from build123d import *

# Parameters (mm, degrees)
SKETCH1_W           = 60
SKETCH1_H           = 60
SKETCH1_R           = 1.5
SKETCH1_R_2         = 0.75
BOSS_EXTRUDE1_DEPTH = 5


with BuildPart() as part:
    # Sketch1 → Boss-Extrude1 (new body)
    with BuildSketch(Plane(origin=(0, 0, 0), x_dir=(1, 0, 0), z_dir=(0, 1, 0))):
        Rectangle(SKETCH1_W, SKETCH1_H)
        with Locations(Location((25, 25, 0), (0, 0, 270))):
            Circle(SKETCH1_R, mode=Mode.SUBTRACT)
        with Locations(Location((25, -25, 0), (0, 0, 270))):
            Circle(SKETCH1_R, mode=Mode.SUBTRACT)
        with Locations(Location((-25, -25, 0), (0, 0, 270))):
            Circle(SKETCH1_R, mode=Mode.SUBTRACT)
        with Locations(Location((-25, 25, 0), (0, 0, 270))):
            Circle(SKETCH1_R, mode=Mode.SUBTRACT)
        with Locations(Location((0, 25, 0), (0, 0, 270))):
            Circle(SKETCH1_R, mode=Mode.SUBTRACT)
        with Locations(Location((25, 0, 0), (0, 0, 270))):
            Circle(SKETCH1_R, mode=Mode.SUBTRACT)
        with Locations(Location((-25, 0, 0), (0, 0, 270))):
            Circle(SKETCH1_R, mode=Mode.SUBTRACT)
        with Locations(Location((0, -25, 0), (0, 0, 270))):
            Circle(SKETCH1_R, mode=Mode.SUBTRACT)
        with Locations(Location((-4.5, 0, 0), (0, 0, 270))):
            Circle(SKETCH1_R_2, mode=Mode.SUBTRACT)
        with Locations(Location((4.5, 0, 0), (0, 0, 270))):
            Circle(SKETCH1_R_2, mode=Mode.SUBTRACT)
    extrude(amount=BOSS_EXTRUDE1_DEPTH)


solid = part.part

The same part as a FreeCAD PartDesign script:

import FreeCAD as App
import Part
import Sketcher
from FreeCAD import Vector
Q = App.Units.Quantity


def add_polygon(sketch, points):
    """Adds a closed chain of lines whose ends are joined by coincident constraints."""
    first, n = sketch.GeometryCount, len(points)
    for a, b in zip(points, points[1:] + points[:1]):
        sketch.addGeometry(Part.LineSegment(App.Vector(*a, 0), App.Vector(*b, 0)), False)
    for i in range(n):
        sketch.addConstraint(Sketcher.Constraint("Coincident", first + i, 2, first + (i + 1) % n, 1))

doc = App.newDocument("Part")
body = doc.addObject("PartDesign::Body", "Body")

# Sketch on XZ plane
sketch1 = body.newObject("Sketcher::SketchObject", "Sketch")
sketch1.AttachmentSupport = (doc.getObject("XZ_Plane"), [""])
sketch1.MapMode = "FlatFace"
add_polygon(sketch1, [(-30, -30), (-30, 30), (30, 30), (30, -30)])  # lines 0-3
sketch1.addGeometry(Part.Circle(Vector(-25, 25, 0), Vector(0, 0, 1), 1.5), False)  # 4
sketch1.addGeometry(Part.Circle(Vector(0, 25, 0), Vector(0, 0, 1), 1.5), False)  # 5
sketch1.addGeometry(Part.Circle(Vector(25, 25, 0), Vector(0, 0, 1), 1.5), False)  # 6
sketch1.addGeometry(Part.Circle(Vector(-25, 0, 0), Vector(0, 0, 1), 1.5), False)  # 7
sketch1.addGeometry(Part.Circle(Vector(-4.5, 0, 0), Vector(0, 0, 1), 0.75), False)  # 8
sketch1.addGeometry(Part.Circle(Vector(-25, -25, 0), Vector(0, 0, 1), 1.5), False)  # 9
sketch1.addGeometry(Part.Circle(Vector(4.5, 0, 0), Vector(0, 0, 1), 0.75), False)  # 10
sketch1.addGeometry(Part.Circle(Vector(25, 0, 0), Vector(0, 0, 1), 1.5), False)  # 11
sketch1.addGeometry(Part.Circle(Vector(0, -25, 0), Vector(0, 0, 1), 1.5), False)  # 12
sketch1.addGeometry(Part.Circle(Vector(25, -25, 0), Vector(0, 0, 1), 1.5), False)  # 13
sketch1.addConstraint([
    Sketcher.Constraint("Vertical", 0),
    Sketcher.Constraint("Horizontal", 1),
    Sketcher.Constraint("Vertical", 2),
    Sketcher.Constraint("Horizontal", 3),
    Sketcher.Constraint("Equal", 4, 5),
    Sketcher.Constraint("Equal", 5, 6),
    Sketcher.Constraint("Equal", 6, 7),
    Sketcher.Constraint("Equal", 7, 9),
    Sketcher.Constraint("Equal", 8, 10),
    Sketcher.Constraint("Equal", 9, 11),
    Sketcher.Constraint("Equal", 11, 12),
    Sketcher.Constraint("Equal", 12, 13),
    Sketcher.Constraint("Symmetric", 6, 3, 9, 3, -1, 1),
    Sketcher.Constraint("Symmetric", 8, 3, 10, 3, -1, 1),
    Sketcher.Constraint("Symmetric", 7, 3, 11, 3, -1, 1),
    Sketcher.Constraint("Symmetric", 5, 3, 12, 3, -1, 1),
    Sketcher.Constraint("Symmetric", 4, 3, 13, 3, -1, 1),
    Sketcher.Constraint("Symmetric", 0, 2, 2, 2, -1, 1),
    Sketcher.Constraint("Symmetric", 4, 3, 6, 3, -2),
    Sketcher.Constraint("PointOnObject", 5, 3, -2),
    Sketcher.Constraint("PointOnObject", 7, 3, -1),
    Sketcher.Constraint("PointOnObject", 8, 3, -1),
    Sketcher.Constraint("Horizontal", 4, 3, 5, 3),
    Sketcher.Constraint("Vertical", 4, 3, 7, 3),
    Sketcher.Constraint("Equal", 3, 0),
    Sketcher.Constraint("Diameter", 4, Q("3 mm")),
    Sketcher.Constraint("Diameter", 8, Q("1.5 mm")),
    Sketcher.Constraint("DistanceX", 1, 1, 1, 2, Q("60 mm")),
    Sketcher.Constraint("DistanceX", 4, 3, -1, 1, Q("25 mm")),
    Sketcher.Constraint("DistanceY", -1, 1, 4, 3, Q("25 mm")),
    Sketcher.Constraint("DistanceX", 8, 3, 10, 3, Q("9 mm")),
])
pad1 = body.newObject("PartDesign::Pad", "Pad")
pad1.Profile = sketch1
pad1.Length = 5
pad1.Reversed = True

doc.recompute()
